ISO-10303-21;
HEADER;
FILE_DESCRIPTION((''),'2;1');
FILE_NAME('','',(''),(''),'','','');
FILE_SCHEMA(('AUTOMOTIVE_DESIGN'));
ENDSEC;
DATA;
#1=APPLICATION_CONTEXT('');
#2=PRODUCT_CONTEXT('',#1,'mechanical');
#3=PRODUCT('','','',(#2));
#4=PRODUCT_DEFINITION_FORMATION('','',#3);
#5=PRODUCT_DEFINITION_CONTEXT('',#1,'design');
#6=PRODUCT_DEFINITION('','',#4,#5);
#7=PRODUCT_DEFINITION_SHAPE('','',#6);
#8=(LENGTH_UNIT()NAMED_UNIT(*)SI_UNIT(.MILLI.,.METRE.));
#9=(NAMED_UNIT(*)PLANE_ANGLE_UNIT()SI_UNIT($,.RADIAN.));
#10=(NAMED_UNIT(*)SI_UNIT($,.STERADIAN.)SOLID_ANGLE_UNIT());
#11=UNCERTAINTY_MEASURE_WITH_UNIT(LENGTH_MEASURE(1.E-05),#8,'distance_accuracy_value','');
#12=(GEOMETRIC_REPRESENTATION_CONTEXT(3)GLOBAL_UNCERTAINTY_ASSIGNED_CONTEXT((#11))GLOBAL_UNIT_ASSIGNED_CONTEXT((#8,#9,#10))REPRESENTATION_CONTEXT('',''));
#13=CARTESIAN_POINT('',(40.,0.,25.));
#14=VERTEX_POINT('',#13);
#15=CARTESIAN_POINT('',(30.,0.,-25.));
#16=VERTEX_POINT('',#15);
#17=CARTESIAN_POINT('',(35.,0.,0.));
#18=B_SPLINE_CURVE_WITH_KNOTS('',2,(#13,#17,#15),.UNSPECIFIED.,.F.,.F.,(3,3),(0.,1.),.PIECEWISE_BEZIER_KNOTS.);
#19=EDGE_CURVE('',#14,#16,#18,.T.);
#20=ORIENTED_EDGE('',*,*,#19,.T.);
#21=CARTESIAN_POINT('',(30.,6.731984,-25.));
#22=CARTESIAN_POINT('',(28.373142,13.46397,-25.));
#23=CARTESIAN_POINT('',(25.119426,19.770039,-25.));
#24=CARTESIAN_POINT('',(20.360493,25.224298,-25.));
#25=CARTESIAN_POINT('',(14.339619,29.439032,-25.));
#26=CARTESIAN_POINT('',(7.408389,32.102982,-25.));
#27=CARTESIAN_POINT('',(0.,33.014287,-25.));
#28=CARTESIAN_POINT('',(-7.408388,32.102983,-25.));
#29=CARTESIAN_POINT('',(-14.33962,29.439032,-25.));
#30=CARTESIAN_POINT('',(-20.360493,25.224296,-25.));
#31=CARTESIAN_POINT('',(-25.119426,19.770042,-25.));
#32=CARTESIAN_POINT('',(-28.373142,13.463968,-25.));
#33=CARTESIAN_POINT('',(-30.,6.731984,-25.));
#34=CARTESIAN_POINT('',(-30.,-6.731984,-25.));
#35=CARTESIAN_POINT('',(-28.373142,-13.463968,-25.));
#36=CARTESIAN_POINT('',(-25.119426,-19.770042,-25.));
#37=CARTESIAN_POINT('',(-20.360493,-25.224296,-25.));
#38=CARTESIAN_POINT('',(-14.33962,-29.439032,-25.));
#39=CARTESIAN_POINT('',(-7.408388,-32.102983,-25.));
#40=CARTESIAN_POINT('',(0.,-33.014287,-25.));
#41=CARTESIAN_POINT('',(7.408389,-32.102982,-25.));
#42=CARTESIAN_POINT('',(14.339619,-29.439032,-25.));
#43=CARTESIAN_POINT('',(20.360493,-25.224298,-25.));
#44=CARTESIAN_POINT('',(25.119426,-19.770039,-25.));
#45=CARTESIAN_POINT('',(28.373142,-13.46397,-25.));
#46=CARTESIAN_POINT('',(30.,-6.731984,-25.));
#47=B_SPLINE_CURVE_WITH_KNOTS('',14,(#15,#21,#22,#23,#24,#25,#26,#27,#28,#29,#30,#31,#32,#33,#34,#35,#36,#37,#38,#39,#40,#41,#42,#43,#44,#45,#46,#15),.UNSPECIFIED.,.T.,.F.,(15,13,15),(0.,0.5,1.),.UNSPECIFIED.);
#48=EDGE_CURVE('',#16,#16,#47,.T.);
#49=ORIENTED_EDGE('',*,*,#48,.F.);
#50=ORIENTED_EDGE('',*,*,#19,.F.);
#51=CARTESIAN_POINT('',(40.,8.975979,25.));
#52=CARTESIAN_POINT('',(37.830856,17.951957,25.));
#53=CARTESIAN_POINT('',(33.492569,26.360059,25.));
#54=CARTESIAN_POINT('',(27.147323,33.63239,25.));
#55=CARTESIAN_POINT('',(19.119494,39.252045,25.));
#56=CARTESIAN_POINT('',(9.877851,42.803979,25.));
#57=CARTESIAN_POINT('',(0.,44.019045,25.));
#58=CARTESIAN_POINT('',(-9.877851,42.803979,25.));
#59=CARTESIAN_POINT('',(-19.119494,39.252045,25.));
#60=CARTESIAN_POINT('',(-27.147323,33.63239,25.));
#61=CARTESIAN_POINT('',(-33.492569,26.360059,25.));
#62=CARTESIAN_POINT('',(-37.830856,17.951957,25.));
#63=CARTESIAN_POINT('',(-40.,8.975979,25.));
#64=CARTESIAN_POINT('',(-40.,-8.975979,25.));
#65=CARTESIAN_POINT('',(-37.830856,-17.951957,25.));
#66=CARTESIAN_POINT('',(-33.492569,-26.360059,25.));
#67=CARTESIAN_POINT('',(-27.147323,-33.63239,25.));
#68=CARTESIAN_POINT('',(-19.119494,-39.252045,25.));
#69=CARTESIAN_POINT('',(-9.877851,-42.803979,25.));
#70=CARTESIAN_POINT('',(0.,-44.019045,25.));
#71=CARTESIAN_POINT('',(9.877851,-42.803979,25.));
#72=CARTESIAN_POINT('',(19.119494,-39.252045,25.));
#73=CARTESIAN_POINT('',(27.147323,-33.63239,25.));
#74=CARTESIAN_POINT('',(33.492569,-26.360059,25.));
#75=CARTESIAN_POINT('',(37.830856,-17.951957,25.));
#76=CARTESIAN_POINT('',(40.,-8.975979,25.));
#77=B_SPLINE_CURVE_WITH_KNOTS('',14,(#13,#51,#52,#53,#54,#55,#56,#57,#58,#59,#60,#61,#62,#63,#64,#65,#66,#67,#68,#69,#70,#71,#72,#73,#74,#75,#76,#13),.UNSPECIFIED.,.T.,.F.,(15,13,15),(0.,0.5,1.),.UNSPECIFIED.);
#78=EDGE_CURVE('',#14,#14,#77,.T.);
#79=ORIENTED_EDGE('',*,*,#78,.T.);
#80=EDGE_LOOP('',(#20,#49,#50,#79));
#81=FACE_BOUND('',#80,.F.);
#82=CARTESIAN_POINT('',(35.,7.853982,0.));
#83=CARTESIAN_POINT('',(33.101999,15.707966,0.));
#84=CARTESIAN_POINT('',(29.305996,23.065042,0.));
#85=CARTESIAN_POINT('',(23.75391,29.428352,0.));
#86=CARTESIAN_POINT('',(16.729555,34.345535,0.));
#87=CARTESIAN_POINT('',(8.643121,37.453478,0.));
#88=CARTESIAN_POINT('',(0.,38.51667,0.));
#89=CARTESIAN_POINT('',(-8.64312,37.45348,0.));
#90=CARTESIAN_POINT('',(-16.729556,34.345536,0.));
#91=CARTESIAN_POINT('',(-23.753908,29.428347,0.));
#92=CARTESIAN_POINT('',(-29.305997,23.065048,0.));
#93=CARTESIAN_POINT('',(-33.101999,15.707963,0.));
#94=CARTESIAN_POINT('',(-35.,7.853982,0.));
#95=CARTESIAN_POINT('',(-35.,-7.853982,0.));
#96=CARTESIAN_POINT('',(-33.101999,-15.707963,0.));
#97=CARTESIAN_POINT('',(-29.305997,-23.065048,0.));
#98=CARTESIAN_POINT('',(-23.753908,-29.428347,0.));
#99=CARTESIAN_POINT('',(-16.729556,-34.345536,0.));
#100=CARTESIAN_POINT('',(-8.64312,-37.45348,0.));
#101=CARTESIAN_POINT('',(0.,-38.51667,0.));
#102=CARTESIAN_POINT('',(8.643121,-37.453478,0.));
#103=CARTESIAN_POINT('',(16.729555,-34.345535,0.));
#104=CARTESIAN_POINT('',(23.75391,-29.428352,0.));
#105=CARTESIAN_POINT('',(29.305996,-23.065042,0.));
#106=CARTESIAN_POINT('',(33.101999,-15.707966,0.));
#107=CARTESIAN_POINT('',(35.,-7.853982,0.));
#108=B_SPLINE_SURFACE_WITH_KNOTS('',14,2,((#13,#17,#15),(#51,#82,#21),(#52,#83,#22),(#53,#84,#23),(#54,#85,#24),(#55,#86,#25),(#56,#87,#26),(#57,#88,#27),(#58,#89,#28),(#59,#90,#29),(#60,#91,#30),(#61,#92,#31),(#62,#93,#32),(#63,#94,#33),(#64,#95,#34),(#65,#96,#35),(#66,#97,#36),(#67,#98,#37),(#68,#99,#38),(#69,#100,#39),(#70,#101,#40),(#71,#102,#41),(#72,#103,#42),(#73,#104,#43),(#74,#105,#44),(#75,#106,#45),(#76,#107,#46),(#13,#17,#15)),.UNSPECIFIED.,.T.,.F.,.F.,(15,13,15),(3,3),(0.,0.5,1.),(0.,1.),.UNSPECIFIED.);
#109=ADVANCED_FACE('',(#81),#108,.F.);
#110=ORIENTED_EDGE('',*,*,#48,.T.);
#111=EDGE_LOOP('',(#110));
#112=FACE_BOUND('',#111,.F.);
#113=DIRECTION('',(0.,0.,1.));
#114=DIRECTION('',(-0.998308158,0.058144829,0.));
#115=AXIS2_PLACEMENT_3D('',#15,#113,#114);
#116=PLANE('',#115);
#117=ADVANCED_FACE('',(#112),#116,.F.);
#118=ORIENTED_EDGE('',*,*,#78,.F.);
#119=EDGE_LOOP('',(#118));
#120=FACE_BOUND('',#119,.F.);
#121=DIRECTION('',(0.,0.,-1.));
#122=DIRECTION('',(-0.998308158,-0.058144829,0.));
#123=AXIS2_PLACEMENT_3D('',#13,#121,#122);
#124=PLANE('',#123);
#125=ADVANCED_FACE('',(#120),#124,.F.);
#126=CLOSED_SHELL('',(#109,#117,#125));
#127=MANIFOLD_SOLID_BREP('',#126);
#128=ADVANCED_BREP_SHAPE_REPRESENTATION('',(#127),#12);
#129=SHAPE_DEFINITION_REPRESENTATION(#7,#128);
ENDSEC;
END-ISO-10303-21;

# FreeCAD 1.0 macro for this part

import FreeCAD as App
import Part
import Sketcher

V = App.Vector

doc = App.newDocument("Part")
body = doc.addObject("PartDesign::Body", "Body")

sketch1 = body.newObject("Sketcher::SketchObject", "Sketch")
sketch1.AttachmentSupport = (doc.getObject("XY_Plane"), [""])
sketch1.MapMode = "FlatFace"
sketch1.AttachmentOffset = App.Placement(V(0, 0, 25), App.Rotation())
sketch1.addGeometry(Part.Circle(V(0, 0, 0), V(0, 0, 1), 40), False)
sketch1.addConstraint([
    Sketcher.Constraint("Coincident", 0, 3, -1, 1),
    Sketcher.Constraint("Diameter", 0, 80.0),
])

sketch2 = body.newObject("Sketcher::SketchObject", "Sketch001")
sketch2.AttachmentSupport = (doc.getObject("XY_Plane"), [""])
sketch2.MapMode = "FlatFace"
sketch2.addGeometry(Part.Circle(V(0, 0, 0), V(0, 0, 1), 35), False)
sketch2.addConstraint([
    Sketcher.Constraint("Coincident", 0, 3, -1, 1),
    Sketcher.Constraint("Diameter", 0, 70.0),
])

sketch3 = body.newObject("Sketcher::SketchObject", "Sketch002")
sketch3.AttachmentSupport = (doc.getObject("XY_Plane"), [""])
sketch3.MapMode = "FlatFace"
sketch3.AttachmentOffset = App.Placement(V(0, 0, -25), App.Rotation())
sketch3.addGeometry(Part.Circle(V(0, 0, 0), V(0, 0, 1), 30), False)
sketch3.addConstraint([
    Sketcher.Constraint("Coincident", 0, 3, -1, 1),
    Sketcher.Constraint("Diameter", 0, 60.0),
])

additiveloft = body.newObject("PartDesign::AdditiveLoft", "AdditiveLoft")
additiveloft.Profile = sketch1
additiveloft.Sections = [sketch2, sketch3]

doc.recompute()
